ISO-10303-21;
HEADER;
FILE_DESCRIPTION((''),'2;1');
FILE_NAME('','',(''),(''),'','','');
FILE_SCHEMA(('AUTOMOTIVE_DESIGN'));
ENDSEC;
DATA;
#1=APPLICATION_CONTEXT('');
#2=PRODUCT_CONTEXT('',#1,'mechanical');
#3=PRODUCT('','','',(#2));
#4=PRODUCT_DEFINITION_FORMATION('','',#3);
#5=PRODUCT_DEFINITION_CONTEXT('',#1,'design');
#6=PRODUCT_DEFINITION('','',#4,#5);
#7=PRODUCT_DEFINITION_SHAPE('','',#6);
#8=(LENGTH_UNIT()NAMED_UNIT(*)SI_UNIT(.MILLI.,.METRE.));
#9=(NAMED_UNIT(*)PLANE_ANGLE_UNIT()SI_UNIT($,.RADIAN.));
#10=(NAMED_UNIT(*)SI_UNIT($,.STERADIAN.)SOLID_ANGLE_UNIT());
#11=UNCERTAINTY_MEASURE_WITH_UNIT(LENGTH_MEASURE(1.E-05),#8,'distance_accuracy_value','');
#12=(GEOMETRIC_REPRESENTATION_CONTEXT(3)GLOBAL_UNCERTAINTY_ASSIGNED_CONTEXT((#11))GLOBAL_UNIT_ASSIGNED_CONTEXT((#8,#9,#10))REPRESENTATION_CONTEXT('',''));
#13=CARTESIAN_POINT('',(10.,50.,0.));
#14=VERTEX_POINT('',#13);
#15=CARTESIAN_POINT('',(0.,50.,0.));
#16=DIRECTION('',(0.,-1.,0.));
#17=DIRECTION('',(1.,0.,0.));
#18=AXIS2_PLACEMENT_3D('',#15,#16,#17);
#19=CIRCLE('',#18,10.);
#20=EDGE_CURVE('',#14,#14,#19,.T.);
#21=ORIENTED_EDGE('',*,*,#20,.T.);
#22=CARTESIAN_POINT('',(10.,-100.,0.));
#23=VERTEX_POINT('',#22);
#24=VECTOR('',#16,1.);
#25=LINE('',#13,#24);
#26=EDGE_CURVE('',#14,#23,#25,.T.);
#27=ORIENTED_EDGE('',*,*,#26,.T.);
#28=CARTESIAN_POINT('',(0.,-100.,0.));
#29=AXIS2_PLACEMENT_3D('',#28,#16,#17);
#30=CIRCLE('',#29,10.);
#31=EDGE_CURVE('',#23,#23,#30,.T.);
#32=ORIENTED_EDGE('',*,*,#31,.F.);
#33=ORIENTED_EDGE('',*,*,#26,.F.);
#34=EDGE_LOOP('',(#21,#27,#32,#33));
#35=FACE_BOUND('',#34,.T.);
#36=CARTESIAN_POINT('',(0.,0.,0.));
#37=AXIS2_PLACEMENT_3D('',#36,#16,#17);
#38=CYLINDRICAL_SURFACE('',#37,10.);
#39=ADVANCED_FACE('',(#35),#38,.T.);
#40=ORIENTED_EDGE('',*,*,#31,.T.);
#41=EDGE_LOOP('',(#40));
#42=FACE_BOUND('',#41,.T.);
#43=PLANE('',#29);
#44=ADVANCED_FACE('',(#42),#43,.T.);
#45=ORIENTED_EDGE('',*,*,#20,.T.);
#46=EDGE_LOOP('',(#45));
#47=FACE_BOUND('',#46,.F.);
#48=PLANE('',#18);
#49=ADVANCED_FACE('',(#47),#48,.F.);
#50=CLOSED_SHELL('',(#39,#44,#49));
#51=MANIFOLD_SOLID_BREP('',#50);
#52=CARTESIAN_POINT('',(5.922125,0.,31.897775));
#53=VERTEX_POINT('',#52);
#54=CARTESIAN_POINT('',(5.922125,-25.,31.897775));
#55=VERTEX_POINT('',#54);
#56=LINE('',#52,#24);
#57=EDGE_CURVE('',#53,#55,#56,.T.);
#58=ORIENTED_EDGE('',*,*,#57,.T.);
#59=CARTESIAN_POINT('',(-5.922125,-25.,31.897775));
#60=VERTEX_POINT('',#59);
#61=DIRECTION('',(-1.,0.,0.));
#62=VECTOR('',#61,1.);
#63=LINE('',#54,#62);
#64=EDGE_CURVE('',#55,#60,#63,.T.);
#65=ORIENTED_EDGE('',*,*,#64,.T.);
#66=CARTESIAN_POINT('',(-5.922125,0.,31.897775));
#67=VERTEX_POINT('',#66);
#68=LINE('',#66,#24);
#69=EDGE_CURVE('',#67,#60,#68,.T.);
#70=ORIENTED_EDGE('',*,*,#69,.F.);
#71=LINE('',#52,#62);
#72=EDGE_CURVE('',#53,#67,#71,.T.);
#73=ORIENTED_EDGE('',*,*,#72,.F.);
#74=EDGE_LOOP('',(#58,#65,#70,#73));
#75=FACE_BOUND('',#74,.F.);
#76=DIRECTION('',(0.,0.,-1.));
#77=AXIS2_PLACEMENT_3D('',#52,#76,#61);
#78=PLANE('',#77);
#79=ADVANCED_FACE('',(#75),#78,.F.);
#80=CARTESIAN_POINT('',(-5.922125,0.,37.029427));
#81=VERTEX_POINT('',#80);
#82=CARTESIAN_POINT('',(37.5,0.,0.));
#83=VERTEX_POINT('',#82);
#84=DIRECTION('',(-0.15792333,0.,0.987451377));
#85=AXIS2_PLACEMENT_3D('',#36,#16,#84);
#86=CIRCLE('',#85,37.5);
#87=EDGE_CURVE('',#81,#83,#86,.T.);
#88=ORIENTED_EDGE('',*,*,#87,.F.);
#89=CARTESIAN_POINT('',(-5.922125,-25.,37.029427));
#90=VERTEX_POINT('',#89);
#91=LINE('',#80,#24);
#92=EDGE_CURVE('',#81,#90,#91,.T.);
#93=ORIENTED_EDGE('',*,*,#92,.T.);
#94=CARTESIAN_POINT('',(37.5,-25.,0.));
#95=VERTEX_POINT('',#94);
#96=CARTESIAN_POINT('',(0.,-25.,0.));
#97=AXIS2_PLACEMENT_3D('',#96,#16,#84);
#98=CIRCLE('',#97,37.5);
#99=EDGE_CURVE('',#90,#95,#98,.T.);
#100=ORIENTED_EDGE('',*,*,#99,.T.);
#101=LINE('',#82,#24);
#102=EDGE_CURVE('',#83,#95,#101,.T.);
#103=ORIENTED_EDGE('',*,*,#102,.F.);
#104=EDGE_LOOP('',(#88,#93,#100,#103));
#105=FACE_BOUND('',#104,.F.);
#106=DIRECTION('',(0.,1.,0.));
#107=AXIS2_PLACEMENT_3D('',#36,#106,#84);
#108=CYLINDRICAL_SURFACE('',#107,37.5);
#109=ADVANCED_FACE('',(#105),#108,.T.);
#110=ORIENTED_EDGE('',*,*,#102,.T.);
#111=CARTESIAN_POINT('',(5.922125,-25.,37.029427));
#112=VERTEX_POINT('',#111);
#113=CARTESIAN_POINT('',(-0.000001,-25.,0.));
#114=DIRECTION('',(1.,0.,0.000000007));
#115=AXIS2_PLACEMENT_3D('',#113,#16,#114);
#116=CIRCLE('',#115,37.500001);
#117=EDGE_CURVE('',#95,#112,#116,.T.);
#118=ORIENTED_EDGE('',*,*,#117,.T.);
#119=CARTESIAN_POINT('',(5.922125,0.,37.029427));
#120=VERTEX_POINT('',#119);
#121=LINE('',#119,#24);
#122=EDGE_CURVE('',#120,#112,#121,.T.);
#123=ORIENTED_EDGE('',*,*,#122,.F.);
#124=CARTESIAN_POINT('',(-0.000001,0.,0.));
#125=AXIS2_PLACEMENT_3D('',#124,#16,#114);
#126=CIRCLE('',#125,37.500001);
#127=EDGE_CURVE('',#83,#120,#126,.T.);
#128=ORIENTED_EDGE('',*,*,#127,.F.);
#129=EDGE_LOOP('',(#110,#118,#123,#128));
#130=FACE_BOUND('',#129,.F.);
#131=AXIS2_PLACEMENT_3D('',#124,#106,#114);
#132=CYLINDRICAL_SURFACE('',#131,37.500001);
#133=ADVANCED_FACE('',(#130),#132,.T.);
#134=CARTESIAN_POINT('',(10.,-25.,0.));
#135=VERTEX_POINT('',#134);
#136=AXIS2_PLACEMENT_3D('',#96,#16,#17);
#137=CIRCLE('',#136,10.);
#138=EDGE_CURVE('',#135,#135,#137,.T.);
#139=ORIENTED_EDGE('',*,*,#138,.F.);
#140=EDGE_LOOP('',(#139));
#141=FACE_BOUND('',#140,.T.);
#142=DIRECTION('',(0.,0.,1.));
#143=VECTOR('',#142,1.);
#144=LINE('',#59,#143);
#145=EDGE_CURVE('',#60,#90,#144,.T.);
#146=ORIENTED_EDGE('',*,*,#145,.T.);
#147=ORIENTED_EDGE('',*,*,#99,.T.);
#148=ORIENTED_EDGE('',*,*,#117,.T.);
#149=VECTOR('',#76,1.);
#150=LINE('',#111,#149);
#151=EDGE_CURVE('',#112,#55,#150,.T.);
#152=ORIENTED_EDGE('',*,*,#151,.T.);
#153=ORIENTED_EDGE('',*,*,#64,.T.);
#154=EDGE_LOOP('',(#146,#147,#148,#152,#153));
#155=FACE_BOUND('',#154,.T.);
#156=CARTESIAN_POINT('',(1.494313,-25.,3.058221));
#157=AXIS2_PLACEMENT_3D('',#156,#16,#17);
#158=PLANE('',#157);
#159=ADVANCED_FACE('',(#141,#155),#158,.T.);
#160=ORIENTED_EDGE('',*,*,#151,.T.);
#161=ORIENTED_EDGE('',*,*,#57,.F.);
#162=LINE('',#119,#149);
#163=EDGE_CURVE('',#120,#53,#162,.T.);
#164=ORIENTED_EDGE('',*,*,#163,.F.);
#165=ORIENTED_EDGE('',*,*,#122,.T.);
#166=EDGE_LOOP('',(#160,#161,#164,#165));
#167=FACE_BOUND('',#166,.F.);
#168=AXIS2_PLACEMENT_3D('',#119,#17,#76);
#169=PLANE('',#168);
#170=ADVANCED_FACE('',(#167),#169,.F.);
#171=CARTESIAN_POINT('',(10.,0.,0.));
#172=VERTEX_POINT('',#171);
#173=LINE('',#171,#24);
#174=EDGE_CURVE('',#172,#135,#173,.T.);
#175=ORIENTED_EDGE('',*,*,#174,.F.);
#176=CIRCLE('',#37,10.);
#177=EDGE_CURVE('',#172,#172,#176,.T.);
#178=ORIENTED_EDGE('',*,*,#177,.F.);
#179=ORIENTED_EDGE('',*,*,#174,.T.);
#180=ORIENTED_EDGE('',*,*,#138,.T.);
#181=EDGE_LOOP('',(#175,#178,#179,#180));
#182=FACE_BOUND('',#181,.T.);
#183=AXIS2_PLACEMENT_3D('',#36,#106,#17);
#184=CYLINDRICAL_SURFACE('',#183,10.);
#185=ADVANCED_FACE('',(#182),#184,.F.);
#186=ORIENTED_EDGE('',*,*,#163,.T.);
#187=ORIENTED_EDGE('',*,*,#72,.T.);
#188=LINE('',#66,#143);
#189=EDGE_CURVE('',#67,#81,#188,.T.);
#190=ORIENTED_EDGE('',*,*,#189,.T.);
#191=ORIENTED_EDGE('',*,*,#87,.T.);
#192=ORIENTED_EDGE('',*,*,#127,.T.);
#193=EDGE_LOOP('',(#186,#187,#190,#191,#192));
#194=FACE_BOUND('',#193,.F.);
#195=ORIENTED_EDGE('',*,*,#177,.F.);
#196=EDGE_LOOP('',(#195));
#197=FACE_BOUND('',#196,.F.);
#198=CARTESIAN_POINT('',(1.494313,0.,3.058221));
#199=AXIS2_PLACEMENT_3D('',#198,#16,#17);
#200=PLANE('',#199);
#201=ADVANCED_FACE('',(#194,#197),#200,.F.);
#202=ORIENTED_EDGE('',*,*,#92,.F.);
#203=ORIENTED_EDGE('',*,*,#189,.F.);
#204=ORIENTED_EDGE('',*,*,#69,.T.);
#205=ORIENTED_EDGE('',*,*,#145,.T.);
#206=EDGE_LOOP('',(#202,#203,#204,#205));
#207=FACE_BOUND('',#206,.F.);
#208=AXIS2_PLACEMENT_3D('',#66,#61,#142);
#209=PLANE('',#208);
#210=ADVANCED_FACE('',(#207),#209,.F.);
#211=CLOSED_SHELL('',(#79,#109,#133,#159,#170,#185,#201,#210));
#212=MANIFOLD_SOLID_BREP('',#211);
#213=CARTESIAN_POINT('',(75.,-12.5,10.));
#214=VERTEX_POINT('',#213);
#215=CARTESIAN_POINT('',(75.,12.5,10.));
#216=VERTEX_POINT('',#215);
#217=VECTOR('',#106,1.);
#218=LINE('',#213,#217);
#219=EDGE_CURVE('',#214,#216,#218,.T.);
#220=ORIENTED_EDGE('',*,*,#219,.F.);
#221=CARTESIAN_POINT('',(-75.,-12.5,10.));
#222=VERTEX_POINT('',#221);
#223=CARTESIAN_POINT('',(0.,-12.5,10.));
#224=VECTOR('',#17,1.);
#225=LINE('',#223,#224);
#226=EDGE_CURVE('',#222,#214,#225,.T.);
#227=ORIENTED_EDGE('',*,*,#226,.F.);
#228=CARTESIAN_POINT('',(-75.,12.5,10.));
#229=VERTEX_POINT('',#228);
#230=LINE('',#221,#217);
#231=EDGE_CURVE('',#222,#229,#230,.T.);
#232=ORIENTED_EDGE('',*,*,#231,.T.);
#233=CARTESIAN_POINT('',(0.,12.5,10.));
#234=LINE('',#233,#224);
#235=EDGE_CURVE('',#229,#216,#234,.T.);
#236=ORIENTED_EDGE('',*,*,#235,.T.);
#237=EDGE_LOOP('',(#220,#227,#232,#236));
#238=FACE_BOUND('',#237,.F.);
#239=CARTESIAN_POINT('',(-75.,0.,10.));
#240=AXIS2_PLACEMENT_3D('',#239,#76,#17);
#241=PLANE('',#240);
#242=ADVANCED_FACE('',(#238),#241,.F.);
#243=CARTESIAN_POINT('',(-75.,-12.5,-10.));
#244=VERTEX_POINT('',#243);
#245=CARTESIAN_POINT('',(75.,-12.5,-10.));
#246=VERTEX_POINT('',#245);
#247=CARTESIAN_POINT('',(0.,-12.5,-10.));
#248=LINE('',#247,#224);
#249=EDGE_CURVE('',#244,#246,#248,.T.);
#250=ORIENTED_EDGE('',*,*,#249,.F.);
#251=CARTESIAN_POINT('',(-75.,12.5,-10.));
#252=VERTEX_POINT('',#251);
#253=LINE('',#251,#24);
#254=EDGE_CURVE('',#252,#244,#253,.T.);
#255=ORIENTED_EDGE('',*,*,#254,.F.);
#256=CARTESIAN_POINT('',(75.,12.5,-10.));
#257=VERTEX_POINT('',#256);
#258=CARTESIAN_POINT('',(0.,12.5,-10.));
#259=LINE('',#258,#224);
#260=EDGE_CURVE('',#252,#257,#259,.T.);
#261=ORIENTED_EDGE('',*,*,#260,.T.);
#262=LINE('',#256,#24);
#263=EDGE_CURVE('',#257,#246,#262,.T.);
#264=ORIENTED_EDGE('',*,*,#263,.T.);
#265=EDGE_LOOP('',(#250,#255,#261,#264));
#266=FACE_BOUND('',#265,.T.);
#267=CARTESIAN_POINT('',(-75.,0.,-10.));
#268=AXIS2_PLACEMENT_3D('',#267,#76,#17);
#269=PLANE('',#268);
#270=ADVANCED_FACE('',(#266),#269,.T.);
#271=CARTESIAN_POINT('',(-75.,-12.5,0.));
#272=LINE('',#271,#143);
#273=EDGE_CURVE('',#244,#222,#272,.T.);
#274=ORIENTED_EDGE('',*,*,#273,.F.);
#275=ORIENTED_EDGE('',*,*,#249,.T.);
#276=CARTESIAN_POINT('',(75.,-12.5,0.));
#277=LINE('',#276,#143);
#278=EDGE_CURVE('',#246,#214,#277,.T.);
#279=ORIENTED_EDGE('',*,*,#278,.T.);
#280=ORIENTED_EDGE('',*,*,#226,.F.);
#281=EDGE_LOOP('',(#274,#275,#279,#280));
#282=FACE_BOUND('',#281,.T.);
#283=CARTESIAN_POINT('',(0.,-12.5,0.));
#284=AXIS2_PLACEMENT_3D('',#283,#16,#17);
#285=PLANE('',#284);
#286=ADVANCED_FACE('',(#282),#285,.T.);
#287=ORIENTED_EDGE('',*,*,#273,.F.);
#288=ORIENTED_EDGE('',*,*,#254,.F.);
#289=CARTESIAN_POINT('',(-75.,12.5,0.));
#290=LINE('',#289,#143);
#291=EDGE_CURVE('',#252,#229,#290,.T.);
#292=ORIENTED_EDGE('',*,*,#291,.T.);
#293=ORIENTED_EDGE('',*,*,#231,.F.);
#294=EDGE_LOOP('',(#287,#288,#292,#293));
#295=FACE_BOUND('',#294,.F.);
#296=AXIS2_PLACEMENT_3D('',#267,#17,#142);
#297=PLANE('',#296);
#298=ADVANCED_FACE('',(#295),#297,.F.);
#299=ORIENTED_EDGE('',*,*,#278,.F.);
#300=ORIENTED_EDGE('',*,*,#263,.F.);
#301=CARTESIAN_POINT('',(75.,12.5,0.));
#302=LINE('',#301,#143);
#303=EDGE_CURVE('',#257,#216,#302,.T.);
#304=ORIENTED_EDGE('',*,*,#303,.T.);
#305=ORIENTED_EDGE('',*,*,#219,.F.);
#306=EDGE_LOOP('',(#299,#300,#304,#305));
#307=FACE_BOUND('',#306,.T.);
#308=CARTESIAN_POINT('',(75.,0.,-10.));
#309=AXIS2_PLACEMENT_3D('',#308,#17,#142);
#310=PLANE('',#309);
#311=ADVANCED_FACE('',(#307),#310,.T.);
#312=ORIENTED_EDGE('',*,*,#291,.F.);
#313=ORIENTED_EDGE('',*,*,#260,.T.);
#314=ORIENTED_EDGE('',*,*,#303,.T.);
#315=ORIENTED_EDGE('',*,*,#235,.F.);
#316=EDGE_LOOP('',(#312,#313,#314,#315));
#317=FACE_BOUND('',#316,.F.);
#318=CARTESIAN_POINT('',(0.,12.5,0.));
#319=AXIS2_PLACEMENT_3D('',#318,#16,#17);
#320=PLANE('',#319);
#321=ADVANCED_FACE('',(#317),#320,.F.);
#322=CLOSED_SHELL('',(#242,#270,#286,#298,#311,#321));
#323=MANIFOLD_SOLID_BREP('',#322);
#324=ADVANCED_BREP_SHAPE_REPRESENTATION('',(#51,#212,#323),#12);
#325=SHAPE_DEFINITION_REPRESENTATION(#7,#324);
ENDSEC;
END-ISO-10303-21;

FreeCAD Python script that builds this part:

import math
import FreeCAD as App
import Part
import Sketcher
Q = App.Units.Quantity


def add_polygon(sketch, points):
    """Adds a closed chain of lines whose ends are joined by coincident constraints."""
    first, n = sketch.GeometryCount, len(points)
    for a, b in zip(points, points[1:] + points[:1]):
        sketch.addGeometry(Part.LineSegment(App.Vector(*a, 0), App.Vector(*b, 0)), False)
    for i in range(n):
        sketch.addConstraint(Sketcher.Constraint("Coincident", first + i, 2, first + (i + 1) % n, 1))

doc = App.newDocument("Part")
body = doc.addObject("PartDesign::Body", "Body")

# Sketch on XZ plane
sketch1 = doc.addObject("Sketcher::SketchObject", "Sketch")
body.addObject(sketch1)
sketch1.AttachmentSupport = (doc.XZ_Plane, [""])
sketch1.MapMode = "FlatFace"
sketch1.addGeometry([
    Part.ArcOfCircle(Part.Circle(App.Vector(0, 0, 0), App.Vector(0, 0, 1), 37.5), math.radians(99.086379), math.radians(360)),  # 0
    Part.ArcOfCircle(Part.Circle(App.Vector(-0.000001, 0, 0), App.Vector(0, 0, 1), 37.500001), math.radians(0), math.radians(80.913619)),  # 1
    Part.LineSegment(App.Vector(5.922125, 37.029427, 0), App.Vector(5.922125, 31.897775, 0)),  # 2
    Part.LineSegment(App.Vector(5.922125, 31.897775, 0), App.Vector(-5.922125, 31.897775, 0)),  # 3
    Part.LineSegment(App.Vector(-5.922125, 31.897775, 0), App.Vector(-5.922125, 37.029427, 0)),  # 4
    Part.Circle(App.Vector(0, 0, 0), App.Vector(0, 0, 1), 10),  # 5
], False)
sketch1.addConstraint([
    Sketcher.Constraint("Tangent", 0, 2, 1, 1),
    Sketcher.Constraint("Coincident", 1, 2, 2, 1),
    Sketcher.Constraint("Coincident", 2, 2, 3, 1),
    Sketcher.Constraint("Coincident", 3, 2, 4, 1),
    Sketcher.Constraint("Coincident", 4, 2, 0, 1),
    Sketcher.Constraint("Vertical", 2),
    Sketcher.Constraint("Horizontal", 3),
    Sketcher.Constraint("Vertical", 4),
    Sketcher.Constraint("Coincident", 0, 3, -1, 1),
    Sketcher.Constraint("Coincident", 5, 3, -1, 1),
    Sketcher.Constraint("Equal", 0, 1),
    Sketcher.Constraint("PointOnObject", 0, 2, -1),
    Sketcher.Constraint("Horizontal", 1, 2, 4, 2),
    Sketcher.Constraint("Diameter", 5, Q("20 mm")),
    Sketcher.Constraint("Radius", 0, Q("37.5 mm")),
    Sketcher.Constraint("DistanceX", 3, 2, 3, 1, Q("11.84425 mm")),
    Sketcher.Constraint("DistanceY", 2, 2, 2, 1, Q("5.131652 mm")),
])
pad1 = doc.addObject("PartDesign::Pad", "Pad")
body.addObject(pad1)
pad1.Profile = sketch1
pad1.Length = 25
body2 = doc.addObject("PartDesign::Body", "Body001")

# Sketch on XZ plane
sketch2 = doc.addObject("Sketcher::SketchObject", "Sketch001")
body2.addObject(sketch2)
sketch2.AttachmentSupport = (doc.getObject("XZ_Plane001"), [""])
sketch2.MapMode = "FlatFace"
sketch2.addGeometry(Part.Circle(App.Vector(0, 0, 0), App.Vector(0, 0, 1), 10), False)
sketch2.addConstraint([
    Sketcher.Constraint("Coincident", 0, 3, -1, 1),
    Sketcher.Constraint("Diameter", 0, Q("20 mm")),
])
pad2 = doc.addObject("PartDesign::Pad", "Pad001")
body2.addObject(pad2)
pad2.Profile = sketch2
pad2.Type = "TwoLengths"
pad2.Length = 100
pad2.Length2 = 50
body3 = doc.addObject("PartDesign::Body", "Body002")

# Sketch on XZ plane
sketch3 = doc.addObject("Sketcher::SketchObject", "Sketch002")
body3.addObject(sketch3)
sketch3.AttachmentSupport = (doc.getObject("XZ_Plane002"), [""])
sketch3.MapMode = "FlatFace"
add_polygon(sketch3, [(-75, 10), (-75, -10), (75, -10), (75, 10)])  # lines 0-3
sketch3.addConstraint([
    Sketcher.Constraint("Vertical", 0),
    Sketcher.Constraint("Horizontal", 1),
    Sketcher.Constraint("Vertical", 2),
    Sketcher.Constraint("Horizontal", 3),
    Sketcher.Constraint("Symmetric", 0, 2, 2, 2, -1, 1),
    Sketcher.Constraint("DistanceX", 1, 1, 1, 2, Q("150 mm")),
    Sketcher.Constraint("DistanceY", 0, 2, 0, 1, Q("20 mm")),
])
pad3 = doc.addObject("PartDesign::Pad", "Pad002")
body3.addObject(pad3)
pad3.Profile = sketch3
pad3.Length = 25
pad3.Midplane = True

doc.recompute()
